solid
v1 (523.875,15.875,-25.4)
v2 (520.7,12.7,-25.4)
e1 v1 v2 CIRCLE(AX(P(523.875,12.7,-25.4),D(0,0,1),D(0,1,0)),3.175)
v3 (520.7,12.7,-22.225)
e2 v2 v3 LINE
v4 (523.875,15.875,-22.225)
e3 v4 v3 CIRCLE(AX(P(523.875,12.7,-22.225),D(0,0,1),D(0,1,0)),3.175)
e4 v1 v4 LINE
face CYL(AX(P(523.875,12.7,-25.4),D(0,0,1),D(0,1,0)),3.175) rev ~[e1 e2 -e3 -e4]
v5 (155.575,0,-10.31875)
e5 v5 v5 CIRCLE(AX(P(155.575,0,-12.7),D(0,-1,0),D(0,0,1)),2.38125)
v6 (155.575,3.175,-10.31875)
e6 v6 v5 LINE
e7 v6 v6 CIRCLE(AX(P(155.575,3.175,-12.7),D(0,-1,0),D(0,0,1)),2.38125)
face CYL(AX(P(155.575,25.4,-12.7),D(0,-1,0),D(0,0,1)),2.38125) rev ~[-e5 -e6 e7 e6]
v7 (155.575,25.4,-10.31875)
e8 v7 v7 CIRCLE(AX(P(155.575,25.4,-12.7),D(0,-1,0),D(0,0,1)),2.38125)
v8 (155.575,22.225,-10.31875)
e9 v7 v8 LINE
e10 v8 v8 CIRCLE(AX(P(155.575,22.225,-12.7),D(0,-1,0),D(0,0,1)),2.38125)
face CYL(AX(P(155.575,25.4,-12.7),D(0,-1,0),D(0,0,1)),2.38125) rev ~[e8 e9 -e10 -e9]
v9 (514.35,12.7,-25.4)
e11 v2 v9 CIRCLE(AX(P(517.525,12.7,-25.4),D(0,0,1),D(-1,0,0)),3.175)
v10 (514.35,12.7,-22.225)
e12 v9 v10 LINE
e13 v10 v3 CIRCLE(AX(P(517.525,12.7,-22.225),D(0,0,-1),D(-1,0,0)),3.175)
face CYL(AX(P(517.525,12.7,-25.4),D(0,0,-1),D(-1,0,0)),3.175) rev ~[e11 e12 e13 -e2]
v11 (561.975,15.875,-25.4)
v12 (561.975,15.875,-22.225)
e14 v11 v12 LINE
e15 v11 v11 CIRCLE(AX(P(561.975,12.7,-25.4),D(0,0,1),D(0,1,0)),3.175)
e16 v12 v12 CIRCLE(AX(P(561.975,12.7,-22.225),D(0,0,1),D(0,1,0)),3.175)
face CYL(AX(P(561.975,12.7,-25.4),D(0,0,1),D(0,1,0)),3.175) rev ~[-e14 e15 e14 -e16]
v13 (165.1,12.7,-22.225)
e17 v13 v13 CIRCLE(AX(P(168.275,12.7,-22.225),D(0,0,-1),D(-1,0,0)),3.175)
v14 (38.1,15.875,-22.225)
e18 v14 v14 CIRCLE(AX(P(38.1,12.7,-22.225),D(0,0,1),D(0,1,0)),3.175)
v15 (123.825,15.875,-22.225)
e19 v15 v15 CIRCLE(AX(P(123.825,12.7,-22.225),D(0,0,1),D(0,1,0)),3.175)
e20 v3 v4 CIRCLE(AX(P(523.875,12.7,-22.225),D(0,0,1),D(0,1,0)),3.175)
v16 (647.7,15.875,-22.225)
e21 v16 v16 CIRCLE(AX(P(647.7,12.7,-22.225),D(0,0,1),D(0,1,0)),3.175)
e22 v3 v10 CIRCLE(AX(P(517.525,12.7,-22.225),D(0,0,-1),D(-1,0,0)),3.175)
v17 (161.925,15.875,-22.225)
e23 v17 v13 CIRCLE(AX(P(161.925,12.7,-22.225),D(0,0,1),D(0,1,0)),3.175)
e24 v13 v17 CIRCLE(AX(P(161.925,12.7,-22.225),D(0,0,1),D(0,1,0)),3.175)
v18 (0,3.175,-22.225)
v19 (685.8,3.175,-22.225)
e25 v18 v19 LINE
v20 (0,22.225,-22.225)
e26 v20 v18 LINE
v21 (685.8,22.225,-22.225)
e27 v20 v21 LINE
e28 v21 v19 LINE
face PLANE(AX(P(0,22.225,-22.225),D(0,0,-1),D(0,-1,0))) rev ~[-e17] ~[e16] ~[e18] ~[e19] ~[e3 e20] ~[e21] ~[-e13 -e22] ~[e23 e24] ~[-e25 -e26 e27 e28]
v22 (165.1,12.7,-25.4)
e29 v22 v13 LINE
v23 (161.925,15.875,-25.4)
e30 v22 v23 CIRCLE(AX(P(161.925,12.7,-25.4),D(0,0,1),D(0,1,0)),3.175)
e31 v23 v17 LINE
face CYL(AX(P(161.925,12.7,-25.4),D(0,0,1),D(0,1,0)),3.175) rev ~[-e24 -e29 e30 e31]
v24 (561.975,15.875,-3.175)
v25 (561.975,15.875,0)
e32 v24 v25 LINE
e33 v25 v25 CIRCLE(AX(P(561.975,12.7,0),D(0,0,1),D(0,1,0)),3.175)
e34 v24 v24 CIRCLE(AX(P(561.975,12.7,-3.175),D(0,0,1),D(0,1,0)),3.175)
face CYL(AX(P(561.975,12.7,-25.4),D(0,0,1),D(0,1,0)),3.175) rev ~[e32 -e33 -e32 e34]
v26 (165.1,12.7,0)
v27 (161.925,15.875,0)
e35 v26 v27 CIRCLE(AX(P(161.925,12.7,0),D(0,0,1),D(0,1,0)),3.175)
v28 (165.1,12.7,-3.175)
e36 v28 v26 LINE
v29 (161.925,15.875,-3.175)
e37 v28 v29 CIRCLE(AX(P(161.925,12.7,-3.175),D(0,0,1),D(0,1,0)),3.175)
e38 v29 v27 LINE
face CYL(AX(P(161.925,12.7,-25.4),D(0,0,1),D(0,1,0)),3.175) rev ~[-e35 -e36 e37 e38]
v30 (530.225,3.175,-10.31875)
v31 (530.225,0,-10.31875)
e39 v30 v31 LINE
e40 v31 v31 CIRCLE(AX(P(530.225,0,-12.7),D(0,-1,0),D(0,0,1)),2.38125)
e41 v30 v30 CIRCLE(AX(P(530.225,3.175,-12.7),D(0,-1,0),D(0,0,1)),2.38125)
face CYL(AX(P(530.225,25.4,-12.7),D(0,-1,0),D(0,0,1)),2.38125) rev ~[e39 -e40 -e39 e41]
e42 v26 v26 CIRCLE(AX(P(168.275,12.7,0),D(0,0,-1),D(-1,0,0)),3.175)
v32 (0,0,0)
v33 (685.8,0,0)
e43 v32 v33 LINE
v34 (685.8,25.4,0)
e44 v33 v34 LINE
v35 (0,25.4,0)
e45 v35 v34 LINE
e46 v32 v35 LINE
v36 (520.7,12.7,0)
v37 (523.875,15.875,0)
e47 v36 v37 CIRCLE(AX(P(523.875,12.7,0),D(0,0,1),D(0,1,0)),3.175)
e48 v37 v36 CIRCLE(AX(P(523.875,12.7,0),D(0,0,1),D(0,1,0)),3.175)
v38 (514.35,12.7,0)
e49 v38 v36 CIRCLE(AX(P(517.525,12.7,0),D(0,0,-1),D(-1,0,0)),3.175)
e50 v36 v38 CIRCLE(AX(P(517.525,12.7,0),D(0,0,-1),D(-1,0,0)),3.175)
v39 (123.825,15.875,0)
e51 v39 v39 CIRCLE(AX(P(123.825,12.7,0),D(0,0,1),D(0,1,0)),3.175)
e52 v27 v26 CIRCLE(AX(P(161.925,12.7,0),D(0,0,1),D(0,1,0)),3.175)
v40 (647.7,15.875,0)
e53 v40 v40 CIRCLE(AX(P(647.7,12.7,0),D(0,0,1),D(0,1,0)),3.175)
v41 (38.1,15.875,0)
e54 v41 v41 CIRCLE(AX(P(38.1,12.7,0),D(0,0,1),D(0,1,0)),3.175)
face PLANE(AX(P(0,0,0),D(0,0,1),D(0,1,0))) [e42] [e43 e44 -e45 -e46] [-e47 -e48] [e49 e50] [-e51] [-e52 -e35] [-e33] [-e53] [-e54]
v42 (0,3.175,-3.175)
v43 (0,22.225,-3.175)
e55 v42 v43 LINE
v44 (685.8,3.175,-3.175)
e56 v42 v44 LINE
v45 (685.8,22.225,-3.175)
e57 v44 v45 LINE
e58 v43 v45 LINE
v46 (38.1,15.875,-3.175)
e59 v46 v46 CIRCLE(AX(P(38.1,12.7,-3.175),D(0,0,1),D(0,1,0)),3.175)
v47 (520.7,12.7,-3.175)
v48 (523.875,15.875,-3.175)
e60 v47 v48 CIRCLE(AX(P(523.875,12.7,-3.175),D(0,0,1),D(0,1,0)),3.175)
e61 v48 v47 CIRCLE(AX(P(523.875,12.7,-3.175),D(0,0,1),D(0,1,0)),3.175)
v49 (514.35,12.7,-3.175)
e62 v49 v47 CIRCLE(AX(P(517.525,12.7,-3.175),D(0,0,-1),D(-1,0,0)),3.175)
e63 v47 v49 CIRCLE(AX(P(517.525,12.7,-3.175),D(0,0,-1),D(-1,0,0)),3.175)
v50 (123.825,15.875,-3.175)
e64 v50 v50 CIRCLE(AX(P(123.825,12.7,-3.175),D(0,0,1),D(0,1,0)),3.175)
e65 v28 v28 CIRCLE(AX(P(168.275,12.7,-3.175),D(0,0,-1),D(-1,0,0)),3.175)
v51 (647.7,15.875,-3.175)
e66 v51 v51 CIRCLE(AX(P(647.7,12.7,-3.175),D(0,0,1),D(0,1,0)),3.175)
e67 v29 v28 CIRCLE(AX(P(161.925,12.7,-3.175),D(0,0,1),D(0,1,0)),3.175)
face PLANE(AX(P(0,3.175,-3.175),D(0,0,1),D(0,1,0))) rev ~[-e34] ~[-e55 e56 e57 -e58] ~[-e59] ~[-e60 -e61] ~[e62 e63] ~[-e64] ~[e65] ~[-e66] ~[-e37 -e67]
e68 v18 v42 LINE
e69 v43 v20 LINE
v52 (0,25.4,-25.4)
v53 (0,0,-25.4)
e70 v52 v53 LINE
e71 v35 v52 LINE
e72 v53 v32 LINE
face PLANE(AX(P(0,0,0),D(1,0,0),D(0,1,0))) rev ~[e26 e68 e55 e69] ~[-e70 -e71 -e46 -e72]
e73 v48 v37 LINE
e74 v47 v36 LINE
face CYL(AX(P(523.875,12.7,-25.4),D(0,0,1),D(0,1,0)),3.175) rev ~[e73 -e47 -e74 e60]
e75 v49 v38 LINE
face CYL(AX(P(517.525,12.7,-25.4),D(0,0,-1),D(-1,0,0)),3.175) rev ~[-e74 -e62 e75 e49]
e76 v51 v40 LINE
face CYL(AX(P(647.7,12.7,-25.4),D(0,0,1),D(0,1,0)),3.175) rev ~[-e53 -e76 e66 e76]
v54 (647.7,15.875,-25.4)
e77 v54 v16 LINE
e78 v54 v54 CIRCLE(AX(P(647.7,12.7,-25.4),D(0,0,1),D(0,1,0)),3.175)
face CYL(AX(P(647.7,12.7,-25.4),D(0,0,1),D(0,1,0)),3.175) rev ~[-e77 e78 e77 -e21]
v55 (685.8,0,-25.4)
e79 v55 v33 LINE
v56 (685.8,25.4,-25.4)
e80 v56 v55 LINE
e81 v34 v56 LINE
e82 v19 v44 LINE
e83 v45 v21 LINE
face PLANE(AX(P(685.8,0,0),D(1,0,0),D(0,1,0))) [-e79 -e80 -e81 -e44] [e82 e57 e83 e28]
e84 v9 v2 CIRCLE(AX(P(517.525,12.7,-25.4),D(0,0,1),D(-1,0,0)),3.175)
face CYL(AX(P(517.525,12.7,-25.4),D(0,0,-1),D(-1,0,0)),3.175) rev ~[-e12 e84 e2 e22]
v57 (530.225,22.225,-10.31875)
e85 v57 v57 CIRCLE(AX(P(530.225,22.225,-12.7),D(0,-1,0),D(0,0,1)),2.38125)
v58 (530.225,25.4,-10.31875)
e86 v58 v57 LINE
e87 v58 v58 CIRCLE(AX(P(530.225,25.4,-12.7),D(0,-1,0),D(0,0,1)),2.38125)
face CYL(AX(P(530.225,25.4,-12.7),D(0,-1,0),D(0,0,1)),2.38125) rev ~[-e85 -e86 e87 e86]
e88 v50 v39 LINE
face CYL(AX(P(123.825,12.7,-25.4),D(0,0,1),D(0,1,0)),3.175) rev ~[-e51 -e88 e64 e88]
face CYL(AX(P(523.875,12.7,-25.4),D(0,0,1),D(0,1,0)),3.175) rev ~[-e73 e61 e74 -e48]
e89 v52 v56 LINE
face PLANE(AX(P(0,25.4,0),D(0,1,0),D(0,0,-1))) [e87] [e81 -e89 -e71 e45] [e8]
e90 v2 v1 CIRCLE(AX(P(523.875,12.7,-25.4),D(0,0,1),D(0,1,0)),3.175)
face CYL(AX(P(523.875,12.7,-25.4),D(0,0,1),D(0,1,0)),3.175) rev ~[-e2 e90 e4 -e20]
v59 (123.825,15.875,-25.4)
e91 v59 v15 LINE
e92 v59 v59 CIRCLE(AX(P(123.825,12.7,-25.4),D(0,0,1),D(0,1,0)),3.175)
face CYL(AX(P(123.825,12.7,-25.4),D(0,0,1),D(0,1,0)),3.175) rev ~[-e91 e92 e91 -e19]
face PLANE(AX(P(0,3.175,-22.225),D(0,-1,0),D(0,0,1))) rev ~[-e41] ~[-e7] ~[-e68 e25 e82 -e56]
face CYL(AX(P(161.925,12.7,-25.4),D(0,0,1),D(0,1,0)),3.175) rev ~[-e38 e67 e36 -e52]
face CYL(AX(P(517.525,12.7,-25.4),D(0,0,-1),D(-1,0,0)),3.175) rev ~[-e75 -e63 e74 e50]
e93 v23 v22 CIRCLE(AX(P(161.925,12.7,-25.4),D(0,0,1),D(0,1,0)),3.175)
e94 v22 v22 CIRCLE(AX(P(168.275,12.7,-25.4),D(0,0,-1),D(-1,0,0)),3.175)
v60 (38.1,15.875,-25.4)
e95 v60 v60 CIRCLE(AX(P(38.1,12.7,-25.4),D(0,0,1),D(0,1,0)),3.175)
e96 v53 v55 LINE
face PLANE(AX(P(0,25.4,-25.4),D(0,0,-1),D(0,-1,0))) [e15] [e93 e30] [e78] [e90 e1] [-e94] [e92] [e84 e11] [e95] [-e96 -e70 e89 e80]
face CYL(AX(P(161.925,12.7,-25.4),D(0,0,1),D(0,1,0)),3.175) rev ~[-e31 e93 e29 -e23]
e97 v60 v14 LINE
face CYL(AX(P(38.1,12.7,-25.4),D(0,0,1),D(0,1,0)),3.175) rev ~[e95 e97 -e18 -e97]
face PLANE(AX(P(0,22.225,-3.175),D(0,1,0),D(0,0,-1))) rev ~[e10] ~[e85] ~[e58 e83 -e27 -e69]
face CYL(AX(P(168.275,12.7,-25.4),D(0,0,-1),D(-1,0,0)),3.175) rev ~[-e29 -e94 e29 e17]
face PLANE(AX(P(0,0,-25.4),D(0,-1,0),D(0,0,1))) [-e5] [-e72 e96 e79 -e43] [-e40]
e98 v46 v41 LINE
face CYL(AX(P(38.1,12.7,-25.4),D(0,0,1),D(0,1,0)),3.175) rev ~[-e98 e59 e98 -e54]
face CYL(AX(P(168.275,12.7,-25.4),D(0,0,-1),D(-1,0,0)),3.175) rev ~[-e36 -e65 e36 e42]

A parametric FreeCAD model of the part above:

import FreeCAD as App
import Part
import Sketcher
from FreeCAD import Vector
Q = App.Units.Quantity

doc = App.newDocument("Part")
body = doc.addObject("PartDesign::Body", "Body")

# Sketch on YZ plane
sketch1 = body.newObject("Sketcher::SketchObject", "Sketch")
sketch1.AttachmentSupport = (doc.getObject("YZ_Plane"), [""])
sketch1.MapMode = "FlatFace"
sketch1.addGeometry(Part.LineSegment(Vector(25, 0, 0), Vector(0, 0, 0)), False)
sketch1.addGeometry(Part.LineSegment(Vector(0, 0, 0), Vector(0, -25, 0)), False)
sketch1.addGeometry(Part.LineSegment(Vector(0, -25, 0), Vector(25, -25, 0)), False)
sketch1.addGeometry(Part.LineSegment(Vector(25, -25, 0), Vector(25, 0, 0)), False)
sketch1.addGeometry(Part.LineSegment(Vector(3, -22, 0), Vector(3, -3, 0)), False)
sketch1.addGeometry(Part.LineSegment(Vector(3, -3, 0), Vector(22, -3, 0)), False)
sketch1.addGeometry(Part.LineSegment(Vector(22, -3, 0), Vector(22, -22, 0)), False)
sketch1.addGeometry(Part.LineSegment(Vector(22, -22, 0), Vector(3, -22, 0)), False)
sketch1.addConstraint(Sketcher.Constraint("Coincident", 0, 2, 1, 1))
sketch1.addConstraint(Sketcher.Constraint("Coincident", 1, 2, 2, 1))
sketch1.addConstraint(Sketcher.Constraint("Coincident", 2, 2, 3, 1))
sketch1.addConstraint(Sketcher.Constraint("Coincident", 3, 2, 0, 1))
sketch1.addConstraint(Sketcher.Constraint("Coincident", 4, 2, 5, 1))
sketch1.addConstraint(Sketcher.Constraint("Coincident", 5, 2, 6, 1))
sketch1.addConstraint(Sketcher.Constraint("Coincident", 6, 2, 7, 1))
sketch1.addConstraint(Sketcher.Constraint("Coincident", 7, 2, 4, 1))
sketch1.addConstraint(Sketcher.Constraint("Horizontal", 0))
sketch1.addConstraint(Sketcher.Constraint("Vertical", 1))
sketch1.addConstraint(Sketcher.Constraint("Horizontal", 2))
sketch1.addConstraint(Sketcher.Constraint("Vertical", 3))
sketch1.addConstraint(Sketcher.Constraint("Vertical", 4))
sketch1.addConstraint(Sketcher.Constraint("Horizontal", 5))
sketch1.addConstraint(Sketcher.Constraint("Vertical", 6))
sketch1.addConstraint(Sketcher.Constraint("Horizontal", 7))
sketch1.addConstraint(Sketcher.Constraint("Coincident", 0, 2, -1, 1))
sketch1.addConstraint(Sketcher.Constraint("Equal", 2, 1))
sketch1.addConstraint(Sketcher.Constraint("Equal", 7, 4))
sketch1.addConstraint(Sketcher.Constraint("DistanceX", 0, 2, 0, 1, Q("1 in")))
sketch1.addConstraint(Sketcher.Constraint("DistanceX", 5, 1, 5, 2, Q("0.75 in")))
sketch1.addConstraint(Sketcher.Constraint("DistanceX", -1, 1, 4, 2, Q("0.125 in")))
sketch1.addConstraint(Sketcher.Constraint("DistanceY", 4, 2, -1, 1, Q("0.125 in")))
pad1 = body.newObject("PartDesign::Pad", "Pad")
pad1.Profile = sketch1
pad1.Length = Q("27 in")

# Sketch on XY plane
sketch2 = body.newObject("Sketcher::SketchObject", "Sketch001")
sketch2.AttachmentSupport = (doc.getObject("XY_Plane"), [""])
sketch2.MapMode = "FlatFace"
sketch2.AttachmentOffset = App.Placement(Vector(0, 0, -1 * 25.4), App.Rotation())
sketch2.addGeometry(Part.Circle(Vector(647.7, 12.7, 0), Vector(0, 0, 1), 3.2), False)
sketch2.addGeometry(Part.Circle(Vector(562, 12.7, 0), Vector(0, 0, 1), 3.2), False)
sketch2.addGeometry(Part.Circle(Vector(523.9, 12.7, 0), Vector(0, 0, 1), 3.2), False)
sketch2.addGeometry(Part.Circle(Vector(161.9, 12.7, 0), Vector(0, 0, 1), 3.2), False)
sketch2.addGeometry(Part.Circle(Vector(123.8, 12.7, 0), Vector(0, 0, 1), 3.2), False)
sketch2.addGeometry(Part.Circle(Vector(38.1, 12.7, 0), Vector(0, 0, 1), 3.2), False)
sketch2.addConstraint(Sketcher.Constraint("Equal", 0, 1))
sketch2.addConstraint(Sketcher.Constraint("Equal", 1, 2))
sketch2.addConstraint(Sketcher.Constraint("Equal", 2, 3))
sketch2.addConstraint(Sketcher.Constraint("Equal", 3, 4))
sketch2.addConstraint(Sketcher.Constraint("Equal", 4, 5))
sketch2.addConstraint(Sketcher.Constraint("Horizontal", 0, 3, 1, 3))
sketch2.addConstraint(Sketcher.Constraint("Horizontal", 1, 3, 2, 3))
sketch2.addConstraint(Sketcher.Constraint("Horizontal", 2, 3, 3, 3))
sketch2.addConstraint(Sketcher.Constraint("Horizontal", 3, 3, 4, 3))
sketch2.addConstraint(Sketcher.Constraint("Horizontal", 4, 3, 5, 3))
sketch2.addConstraint(Sketcher.Constraint("Diameter", 0, Q("0.25 in")))
sketch2.addConstraint(Sketcher.Constraint("DistanceX", 5, 3, 0, 3, Q("24 in")))
sketch2.addConstraint(Sketcher.Constraint("DistanceX", -1, 1, 0, 3, Q("25.5 in")))
sketch2.addConstraint(Sketcher.Constraint("DistanceY", -1, 1, 0, 3, Q("0.5 in")))
sketch2.addConstraint(Sketcher.Constraint("DistanceX", 2, 3, 1, 3, Q("1.5 in")))
sketch2.addConstraint(Sketcher.Constraint("DistanceX", 4, 3, 3, 3, Q("1.5 in")))
sketch2.addConstraint(Sketcher.Constraint("DistanceX", 3, 3, 2, 3, Q("14.25 in")))
sketch2.addConstraint(Sketcher.Constraint("DistanceX", -1, 1, 1, 3, Q("22.125 in")))
doc.recompute()
hole = body.newObject("PartDesign::Hole", "Hole")
hole.Profile = sketch2
hole.ThreadType = "None"
hole.Diameter = Q("0.25 in")
hole.DepthType = "ThroughAll"
hole.Reversed = True

# Sketch on XY plane
sketch3 = body.newObject("Sketcher::SketchObject", "Sketch002")
sketch3.AttachmentSupport = (doc.getObject("XY_Plane"), [""])
sketch3.MapMode = "FlatFace"
sketch3.AttachmentOffset = App.Placement(Vector(0, 0, -1 * 25.4), App.Rotation())
sketch3.addGeometry(Part.Circle(Vector(517.5, 12.7, 0), Vector(0, 0, 1), 3.2), False)
sketch3.addGeometry(Part.Circle(Vector(168.3, 12.7, 0), Vector(0, 0, 1), 3.2), False)
sketch3.addConstraint(Sketcher.Constraint("Equal", 0, 1))
sketch3.addConstraint(Sketcher.Constraint("Horizontal", 0, 3, 1, 3))
sketch3.addConstraint(Sketcher.Constraint("Diameter", 0, Q("0.25 in")))
sketch3.addConstraint(Sketcher.Constraint("DistanceY", -1, 1, 0, 3, Q("0.5 in")))
sketch3.addConstraint(Sketcher.Constraint("DistanceX", 1, 3, 0, 3, Q("13.75 in")))
sketch3.addConstraint(Sketcher.Constraint("DistanceX", -1, 1, 0, 3, Q("20.375 in")))
pocket1 = body.newObject("PartDesign::Pocket", "Pocket")
pocket1.Profile = sketch3
pocket1.Length = Q("1 in")
pocket1.Reversed = True

# Sketch on XZ plane
sketch4 = body.newObject("Sketcher::SketchObject", "Sketch003")
sketch4.AttachmentSupport = (doc.getObject("XZ_Plane"), [""])
sketch4.MapMode = "FlatFace"
sketch4.AttachmentOffset = App.Placement(Vector(0, 0, -1 * 25.4), App.Rotation())
sketch4.addGeometry(Part.Circle(Vector(155.6, -12.7, 0), Vector(0, 0, 1), 2.4), False)
sketch4.addGeometry(Part.Circle(Vector(530.2, -12.7, 0), Vector(0, 0, 1), 2.4), False)
sketch4.addConstraint(Sketcher.Constraint("Equal", 0, 1))
sketch4.addConstraint(Sketcher.Constraint("Horizontal", 0, 3, 1, 3))
sketch4.addConstraint(Sketcher.Constraint("Diameter", 0, Q("0.1875 in")))
sketch4.addConstraint(Sketcher.Constraint("DistanceY", 0, 3, -1, 1, Q("0.5 in")))
sketch4.addConstraint(Sketcher.Constraint("DistanceX", 0, 3, 1, 3, Q("14.75 in")))
sketch4.addConstraint(Sketcher.Constraint("DistanceX", -1, 1, 0, 3, Q("6.125 in")))
doc.recompute()
hole2 = body.newObject("PartDesign::Hole", "Hole001")
hole2.Profile = sketch4
hole2.ThreadType = "None"
hole2.Diameter = Q("0.1875 in")
hole2.DepthType = "Dimension"
hole2.Depth = Q("1 in")
hole2.DrillPoint = "Angled"
hole2.DrillPointAngle = 118
hole2.Reversed = True

doc.recompute()
